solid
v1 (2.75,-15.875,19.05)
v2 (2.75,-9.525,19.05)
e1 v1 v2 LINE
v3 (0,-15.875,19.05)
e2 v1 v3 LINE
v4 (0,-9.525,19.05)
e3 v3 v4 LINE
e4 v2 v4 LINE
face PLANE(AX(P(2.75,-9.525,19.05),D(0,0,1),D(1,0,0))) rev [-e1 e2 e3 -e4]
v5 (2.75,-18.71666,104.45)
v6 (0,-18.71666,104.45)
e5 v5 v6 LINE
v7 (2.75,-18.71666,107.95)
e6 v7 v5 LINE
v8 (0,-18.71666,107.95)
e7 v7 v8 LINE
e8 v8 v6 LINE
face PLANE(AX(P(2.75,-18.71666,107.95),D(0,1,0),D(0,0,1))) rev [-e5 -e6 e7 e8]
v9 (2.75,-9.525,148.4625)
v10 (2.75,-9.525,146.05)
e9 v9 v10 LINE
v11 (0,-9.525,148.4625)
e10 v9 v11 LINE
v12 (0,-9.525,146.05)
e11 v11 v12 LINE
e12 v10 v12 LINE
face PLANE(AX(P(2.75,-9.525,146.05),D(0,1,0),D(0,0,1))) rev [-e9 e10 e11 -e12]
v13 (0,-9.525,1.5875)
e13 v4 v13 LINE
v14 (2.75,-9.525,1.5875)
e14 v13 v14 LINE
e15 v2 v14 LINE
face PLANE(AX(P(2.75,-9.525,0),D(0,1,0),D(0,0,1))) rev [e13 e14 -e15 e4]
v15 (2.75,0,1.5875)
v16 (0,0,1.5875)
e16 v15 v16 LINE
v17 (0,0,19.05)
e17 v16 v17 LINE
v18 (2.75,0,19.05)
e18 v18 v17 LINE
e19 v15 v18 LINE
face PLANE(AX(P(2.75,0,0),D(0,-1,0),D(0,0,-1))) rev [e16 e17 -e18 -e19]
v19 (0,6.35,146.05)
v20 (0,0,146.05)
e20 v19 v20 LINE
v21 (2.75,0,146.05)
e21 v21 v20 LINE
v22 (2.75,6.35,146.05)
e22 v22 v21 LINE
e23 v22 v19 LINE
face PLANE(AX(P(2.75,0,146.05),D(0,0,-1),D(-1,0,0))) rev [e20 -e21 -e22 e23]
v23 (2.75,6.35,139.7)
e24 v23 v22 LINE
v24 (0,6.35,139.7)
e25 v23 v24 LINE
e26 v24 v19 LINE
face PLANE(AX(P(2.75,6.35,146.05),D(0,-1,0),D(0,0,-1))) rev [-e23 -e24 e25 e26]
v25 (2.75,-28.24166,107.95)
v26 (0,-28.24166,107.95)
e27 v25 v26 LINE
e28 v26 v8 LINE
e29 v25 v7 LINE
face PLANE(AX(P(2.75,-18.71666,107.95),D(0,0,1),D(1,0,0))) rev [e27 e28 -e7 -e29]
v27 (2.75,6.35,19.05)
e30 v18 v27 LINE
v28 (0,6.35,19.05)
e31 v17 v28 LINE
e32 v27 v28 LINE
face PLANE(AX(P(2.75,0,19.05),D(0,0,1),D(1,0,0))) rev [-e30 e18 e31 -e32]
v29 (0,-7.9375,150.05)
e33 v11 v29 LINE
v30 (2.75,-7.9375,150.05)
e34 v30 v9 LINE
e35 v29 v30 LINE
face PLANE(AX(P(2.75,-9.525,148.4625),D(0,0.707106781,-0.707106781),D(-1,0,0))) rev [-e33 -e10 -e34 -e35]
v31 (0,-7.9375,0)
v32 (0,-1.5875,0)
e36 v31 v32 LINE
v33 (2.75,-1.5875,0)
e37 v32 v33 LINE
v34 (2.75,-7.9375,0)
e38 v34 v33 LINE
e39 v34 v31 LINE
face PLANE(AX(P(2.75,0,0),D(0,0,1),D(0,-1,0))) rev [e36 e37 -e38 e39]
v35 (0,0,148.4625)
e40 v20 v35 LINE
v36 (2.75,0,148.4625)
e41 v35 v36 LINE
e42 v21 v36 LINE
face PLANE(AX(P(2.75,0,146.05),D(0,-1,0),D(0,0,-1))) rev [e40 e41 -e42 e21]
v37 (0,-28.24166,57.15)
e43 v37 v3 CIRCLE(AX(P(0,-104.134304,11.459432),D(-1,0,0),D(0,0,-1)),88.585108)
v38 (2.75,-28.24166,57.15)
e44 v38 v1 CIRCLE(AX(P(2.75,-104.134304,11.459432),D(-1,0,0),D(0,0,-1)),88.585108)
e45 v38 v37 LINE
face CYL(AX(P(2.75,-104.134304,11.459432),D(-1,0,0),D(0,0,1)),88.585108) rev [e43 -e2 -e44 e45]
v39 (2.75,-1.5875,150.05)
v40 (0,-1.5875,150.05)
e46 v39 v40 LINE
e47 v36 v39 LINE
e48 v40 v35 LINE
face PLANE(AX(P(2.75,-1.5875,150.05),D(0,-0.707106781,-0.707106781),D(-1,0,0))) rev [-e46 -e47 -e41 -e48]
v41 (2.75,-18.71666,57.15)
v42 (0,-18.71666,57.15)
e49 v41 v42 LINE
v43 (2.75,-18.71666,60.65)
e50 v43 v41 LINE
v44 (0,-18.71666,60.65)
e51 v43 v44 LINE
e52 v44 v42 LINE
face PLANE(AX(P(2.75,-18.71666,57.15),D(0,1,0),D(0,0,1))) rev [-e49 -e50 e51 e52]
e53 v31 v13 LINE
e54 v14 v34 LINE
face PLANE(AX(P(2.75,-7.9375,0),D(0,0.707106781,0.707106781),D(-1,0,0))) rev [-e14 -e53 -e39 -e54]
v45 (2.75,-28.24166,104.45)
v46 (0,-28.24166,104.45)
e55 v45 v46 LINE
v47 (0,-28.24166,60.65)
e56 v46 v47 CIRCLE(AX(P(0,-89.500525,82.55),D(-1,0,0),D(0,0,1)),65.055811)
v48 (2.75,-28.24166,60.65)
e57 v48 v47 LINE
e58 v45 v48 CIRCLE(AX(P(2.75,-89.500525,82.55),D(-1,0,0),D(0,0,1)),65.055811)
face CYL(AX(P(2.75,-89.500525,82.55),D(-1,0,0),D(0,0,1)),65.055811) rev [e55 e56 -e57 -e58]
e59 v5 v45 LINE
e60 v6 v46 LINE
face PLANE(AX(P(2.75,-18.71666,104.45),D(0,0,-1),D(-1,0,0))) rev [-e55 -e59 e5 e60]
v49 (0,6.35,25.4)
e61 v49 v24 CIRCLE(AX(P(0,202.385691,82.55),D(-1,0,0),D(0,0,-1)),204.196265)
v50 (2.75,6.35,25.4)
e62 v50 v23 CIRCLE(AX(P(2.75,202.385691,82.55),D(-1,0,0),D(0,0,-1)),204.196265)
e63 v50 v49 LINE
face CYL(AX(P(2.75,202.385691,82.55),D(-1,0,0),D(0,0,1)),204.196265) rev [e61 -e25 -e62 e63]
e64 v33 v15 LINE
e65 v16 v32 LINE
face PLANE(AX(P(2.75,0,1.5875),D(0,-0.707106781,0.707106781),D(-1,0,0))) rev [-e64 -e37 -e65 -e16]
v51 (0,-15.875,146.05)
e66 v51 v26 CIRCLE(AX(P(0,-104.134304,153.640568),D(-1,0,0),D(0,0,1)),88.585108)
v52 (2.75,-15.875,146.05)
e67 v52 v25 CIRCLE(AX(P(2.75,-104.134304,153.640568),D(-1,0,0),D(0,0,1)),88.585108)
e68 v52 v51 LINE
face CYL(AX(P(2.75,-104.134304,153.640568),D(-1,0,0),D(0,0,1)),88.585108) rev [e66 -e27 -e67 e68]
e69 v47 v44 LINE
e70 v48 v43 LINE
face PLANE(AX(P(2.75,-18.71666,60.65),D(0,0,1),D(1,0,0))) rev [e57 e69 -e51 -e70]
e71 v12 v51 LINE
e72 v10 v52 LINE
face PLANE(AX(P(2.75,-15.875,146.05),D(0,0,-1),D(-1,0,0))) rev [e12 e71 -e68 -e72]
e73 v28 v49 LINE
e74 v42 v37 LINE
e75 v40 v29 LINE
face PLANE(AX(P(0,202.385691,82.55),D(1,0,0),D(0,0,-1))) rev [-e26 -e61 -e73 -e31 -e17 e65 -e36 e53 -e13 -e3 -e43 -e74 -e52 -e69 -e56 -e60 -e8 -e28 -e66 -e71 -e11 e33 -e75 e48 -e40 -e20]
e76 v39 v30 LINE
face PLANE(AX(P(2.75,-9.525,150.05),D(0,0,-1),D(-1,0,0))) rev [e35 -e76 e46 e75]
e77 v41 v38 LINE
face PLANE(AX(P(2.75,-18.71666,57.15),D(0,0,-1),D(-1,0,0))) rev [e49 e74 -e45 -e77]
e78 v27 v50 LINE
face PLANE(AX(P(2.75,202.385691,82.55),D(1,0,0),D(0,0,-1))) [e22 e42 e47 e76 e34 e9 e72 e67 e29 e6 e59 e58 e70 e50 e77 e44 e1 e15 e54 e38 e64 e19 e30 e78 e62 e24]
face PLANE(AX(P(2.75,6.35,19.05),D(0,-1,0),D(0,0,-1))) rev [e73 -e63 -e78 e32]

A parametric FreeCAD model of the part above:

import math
import FreeCAD as App
import Part
import Sketcher
from FreeCAD import Vector
Q = App.Units.Quantity


def edges_at(feature, points):
    """Names of the edges that pass closest to the given points."""
    edges = feature.Shape.Edges
    near = lambda p: min(range(len(edges)), key=lambda i: edges[i].distToShape(Part.Vertex(*p))[0])
    return sorted({f"Edge{near(p) + 1}" for p in points})

doc = App.newDocument("Part")
body = doc.addObject("PartDesign::Body", "Body")

sketch1 = body.newObject("Sketcher::SketchObject", "Sketch")
sketch1.AttachmentSupport = (doc.getObject("YZ_Plane"), [""])
sketch1.MapMode = "FlatFace"
sketch1.addGeometry([
    Part.LineSegment(Vector(-15.9, 19.1, 0), Vector(-9.5, 19.1, 0)),
    Part.LineSegment(Vector(-9.5, 19.1, 0), Vector(-9.5, 0, 0)),
    Part.LineSegment(Vector(-9.5, 0, 0), Vector(0, 0, 0)),
    Part.LineSegment(Vector(0, 0, 0), Vector(0, 19.1, 0)),
    Part.LineSegment(Vector(0, 19.1, 0), Vector(6.3, 19.1, 0)),
    Part.LineSegment(Vector(6.3, 19.1, 0), Vector(6.3, 25.4, 0)),
    Part.ArcOfCircle(Part.Circle(Vector(202.4, 82.5, 0), Vector(0, 0, 1), 204.2), math.radians(164), math.radians(196)),
    Part.LineSegment(Vector(6.3, 139.7, 0), Vector(6.3, 146.1, 0)),
    Part.LineSegment(Vector(6.3, 146.1, 0), Vector(0, 146.1, 0)),
    Part.LineSegment(Vector(0, 146.1, 0), Vector(0, 150.1, 0)),
    Part.LineSegment(Vector(0, 150.1, 0), Vector(-9.5, 150.1, 0)),
    Part.LineSegment(Vector(-9.5, 150.1, 0), Vector(-9.5, 146.1, 0)),
    Part.LineSegment(Vector(-9.5, 146.1, 0), Vector(-15.9, 146.1, 0)),
    Part.ArcOfCircle(Part.Circle(Vector(-104.1, 153.6, 0), Vector(0, 0, 1), 88.6), math.radians(-31), math.radians(-5)),
    Part.LineSegment(Vector(-28.2, 108, 0), Vector(-18.7, 108, 0)),
    Part.LineSegment(Vector(-18.7, 108, 0), Vector(-18.7, 104.5, 0)),
    Part.LineSegment(Vector(-18.7, 104.5, 0), Vector(-28.2, 104.5, 0)),
    Part.ArcOfCircle(Part.Circle(Vector(-89.5, 82.5, 0), Vector(0, 0, 1), 65.1), math.radians(-20), math.radians(20)),
    Part.LineSegment(Vector(-28.2, 60.6, 0), Vector(-18.7, 60.6, 0)),
    Part.LineSegment(Vector(-18.7, 60.6, 0), Vector(-18.7, 57.1, 0)),
    Part.LineSegment(Vector(-18.7, 57.1, 0), Vector(-28.2, 57.1, 0)),
    Part.ArcOfCircle(Part.Circle(Vector(-104.1, 11.5, 0), Vector(0, 0, 1), 88.6), math.radians(5), math.radians(31)),
], False)
sketch1.addConstraint([
    Sketcher.Constraint("Coincident", 0, 2, 1, 1),
    Sketcher.Constraint("Coincident", 1, 2, 2, 1),
    Sketcher.Constraint("Coincident", 2, 2, 3, 1),
    Sketcher.Constraint("Coincident", 3, 2, 4, 1),
    Sketcher.Constraint("Coincident", 4, 2, 5, 1),
    Sketcher.Constraint("Coincident", 5, 2, 6, 2),
    Sketcher.Constraint("Coincident", 6, 1, 7, 1),
    Sketcher.Constraint("Coincident", 7, 2, 8, 1),
    Sketcher.Constraint("Coincident", 8, 2, 9, 1),
    Sketcher.Constraint("Coincident", 9, 2, 10, 1),
    Sketcher.Constraint("Coincident", 10, 2, 11, 1),
    Sketcher.Constraint("Coincident", 11, 2, 12, 1),
    Sketcher.Constraint("Coincident", 12, 2, 13, 2),
    Sketcher.Constraint("Coincident", 13, 1, 14, 1),
    Sketcher.Constraint("Coincident", 14, 2, 15, 1),
    Sketcher.Constraint("Coincident", 15, 2, 16, 1),
    Sketcher.Constraint("Coincident", 16, 2, 17, 2),
    Sketcher.Constraint("Coincident", 17, 1, 18, 1),
    Sketcher.Constraint("Coincident", 18, 2, 19, 1),
    Sketcher.Constraint("Coincident", 19, 2, 20, 1),
    Sketcher.Constraint("Coincident", 20, 2, 21, 2),
    Sketcher.Constraint("Coincident", 21, 1, 0, 1),
    Sketcher.Constraint("Horizontal", 0),
    Sketcher.Constraint("Vertical", 1),
    Sketcher.Constraint("Horizontal", 2),
    Sketcher.Constraint("Vertical", 3),
    Sketcher.Constraint("Horizontal", 4),
    Sketcher.Constraint("Vertical", 5),
    Sketcher.Constraint("Vertical", 7),
    Sketcher.Constraint("Horizontal", 8),
    Sketcher.Constraint("Vertical", 9),
    Sketcher.Constraint("Horizontal", 10),
    Sketcher.Constraint("Vertical", 11),
    Sketcher.Constraint("Horizontal", 12),
    Sketcher.Constraint("Horizontal", 14),
    Sketcher.Constraint("Vertical", 15),
    Sketcher.Constraint("Horizontal", 16),
    Sketcher.Constraint("Horizontal", 18),
    Sketcher.Constraint("Vertical", 19),
    Sketcher.Constraint("Horizontal", 20),
    Sketcher.Constraint("Coincident", 2, 2, -1, 1),
    Sketcher.Constraint("Equal", 13, 21),
    Sketcher.Constraint("PointOnObject", 8, 2, -2),
    Sketcher.Constraint("Horizontal", 6, 3, 17, 3),
    Sketcher.Constraint("Horizontal", 0, 2, 3, 2),
    Sketcher.Constraint("Horizontal", 8, 2, 11, 2),
    Sketcher.Constraint("Vertical", 13, 3, 21, 3),
    Sketcher.Constraint("Vertical", 5, 2, 6, 1),
    Sketcher.Constraint("Vertical", 1, 2, 10, 2),
    Sketcher.Constraint("Vertical", 13, 1, 16, 2),
    Sketcher.Constraint("Vertical", 16, 2, 17, 1),
    Sketcher.Constraint("Vertical", 15, 2, 18, 2),
    Sketcher.Constraint("Vertical", 17, 1, 20, 2),
    Sketcher.Constraint("Vertical", 12, 2, 21, 1),
    Sketcher.Constraint("Equal", 0, 4),
    Sketcher.Constraint("Equal", 10, 14),
    Sketcher.Constraint("Equal", 12, 5),
    Sketcher.Constraint("Equal", 5, 7),
    Sketcher.Constraint("DistanceY", -1, 1, 5, 2, Q("1 in")),
    Sketcher.Constraint("DistanceY", 4, 2, 7, 2, Q("5 in")),
    Sketcher.Constraint("DistanceX", 0, 1, 0, 2, Q("0.25 in")),
    Sketcher.Constraint("DistanceY", 13, 1, 12, 2, Q("1.5 in")),
    Sketcher.Constraint("DistanceX", 2, 1, 2, 2, Q("0.375 in")),
    Sketcher.Constraint("Radius", 13, Q("88.585108 mm")),
    Sketcher.Constraint("Radius", 17, Q("65.055811 mm")),
    Sketcher.Constraint("DistanceY", 9, 1, 9, 2, Q("4 mm")),
    Sketcher.Constraint("DistanceY", 15, 2, 15, 1, Q("3.5 mm")),
    Sketcher.Constraint("Radius", 6, Q("204.196265 mm")),
    Sketcher.Constraint("DistanceX", 13, 1, -1, 1, Q("28.24166 mm")),
])
pad1 = body.newObject("PartDesign::Pad", "Pad")
pad1.Profile = sketch1
pad1.Length = 2.75
doc.recompute()

chamfer = body.newObject("PartDesign::Chamfer", "Chamfer")
chamfer.Base = (pad1, edges_at(pad1, [
    (1.375, 0, 0),
    (1.375, -9.525, 0),
    (1.375, -9.525, 150.05),
    (1.375, 0, 150.05),
]))
chamfer.Size = Q("0.0625 in")

doc.recompute()
